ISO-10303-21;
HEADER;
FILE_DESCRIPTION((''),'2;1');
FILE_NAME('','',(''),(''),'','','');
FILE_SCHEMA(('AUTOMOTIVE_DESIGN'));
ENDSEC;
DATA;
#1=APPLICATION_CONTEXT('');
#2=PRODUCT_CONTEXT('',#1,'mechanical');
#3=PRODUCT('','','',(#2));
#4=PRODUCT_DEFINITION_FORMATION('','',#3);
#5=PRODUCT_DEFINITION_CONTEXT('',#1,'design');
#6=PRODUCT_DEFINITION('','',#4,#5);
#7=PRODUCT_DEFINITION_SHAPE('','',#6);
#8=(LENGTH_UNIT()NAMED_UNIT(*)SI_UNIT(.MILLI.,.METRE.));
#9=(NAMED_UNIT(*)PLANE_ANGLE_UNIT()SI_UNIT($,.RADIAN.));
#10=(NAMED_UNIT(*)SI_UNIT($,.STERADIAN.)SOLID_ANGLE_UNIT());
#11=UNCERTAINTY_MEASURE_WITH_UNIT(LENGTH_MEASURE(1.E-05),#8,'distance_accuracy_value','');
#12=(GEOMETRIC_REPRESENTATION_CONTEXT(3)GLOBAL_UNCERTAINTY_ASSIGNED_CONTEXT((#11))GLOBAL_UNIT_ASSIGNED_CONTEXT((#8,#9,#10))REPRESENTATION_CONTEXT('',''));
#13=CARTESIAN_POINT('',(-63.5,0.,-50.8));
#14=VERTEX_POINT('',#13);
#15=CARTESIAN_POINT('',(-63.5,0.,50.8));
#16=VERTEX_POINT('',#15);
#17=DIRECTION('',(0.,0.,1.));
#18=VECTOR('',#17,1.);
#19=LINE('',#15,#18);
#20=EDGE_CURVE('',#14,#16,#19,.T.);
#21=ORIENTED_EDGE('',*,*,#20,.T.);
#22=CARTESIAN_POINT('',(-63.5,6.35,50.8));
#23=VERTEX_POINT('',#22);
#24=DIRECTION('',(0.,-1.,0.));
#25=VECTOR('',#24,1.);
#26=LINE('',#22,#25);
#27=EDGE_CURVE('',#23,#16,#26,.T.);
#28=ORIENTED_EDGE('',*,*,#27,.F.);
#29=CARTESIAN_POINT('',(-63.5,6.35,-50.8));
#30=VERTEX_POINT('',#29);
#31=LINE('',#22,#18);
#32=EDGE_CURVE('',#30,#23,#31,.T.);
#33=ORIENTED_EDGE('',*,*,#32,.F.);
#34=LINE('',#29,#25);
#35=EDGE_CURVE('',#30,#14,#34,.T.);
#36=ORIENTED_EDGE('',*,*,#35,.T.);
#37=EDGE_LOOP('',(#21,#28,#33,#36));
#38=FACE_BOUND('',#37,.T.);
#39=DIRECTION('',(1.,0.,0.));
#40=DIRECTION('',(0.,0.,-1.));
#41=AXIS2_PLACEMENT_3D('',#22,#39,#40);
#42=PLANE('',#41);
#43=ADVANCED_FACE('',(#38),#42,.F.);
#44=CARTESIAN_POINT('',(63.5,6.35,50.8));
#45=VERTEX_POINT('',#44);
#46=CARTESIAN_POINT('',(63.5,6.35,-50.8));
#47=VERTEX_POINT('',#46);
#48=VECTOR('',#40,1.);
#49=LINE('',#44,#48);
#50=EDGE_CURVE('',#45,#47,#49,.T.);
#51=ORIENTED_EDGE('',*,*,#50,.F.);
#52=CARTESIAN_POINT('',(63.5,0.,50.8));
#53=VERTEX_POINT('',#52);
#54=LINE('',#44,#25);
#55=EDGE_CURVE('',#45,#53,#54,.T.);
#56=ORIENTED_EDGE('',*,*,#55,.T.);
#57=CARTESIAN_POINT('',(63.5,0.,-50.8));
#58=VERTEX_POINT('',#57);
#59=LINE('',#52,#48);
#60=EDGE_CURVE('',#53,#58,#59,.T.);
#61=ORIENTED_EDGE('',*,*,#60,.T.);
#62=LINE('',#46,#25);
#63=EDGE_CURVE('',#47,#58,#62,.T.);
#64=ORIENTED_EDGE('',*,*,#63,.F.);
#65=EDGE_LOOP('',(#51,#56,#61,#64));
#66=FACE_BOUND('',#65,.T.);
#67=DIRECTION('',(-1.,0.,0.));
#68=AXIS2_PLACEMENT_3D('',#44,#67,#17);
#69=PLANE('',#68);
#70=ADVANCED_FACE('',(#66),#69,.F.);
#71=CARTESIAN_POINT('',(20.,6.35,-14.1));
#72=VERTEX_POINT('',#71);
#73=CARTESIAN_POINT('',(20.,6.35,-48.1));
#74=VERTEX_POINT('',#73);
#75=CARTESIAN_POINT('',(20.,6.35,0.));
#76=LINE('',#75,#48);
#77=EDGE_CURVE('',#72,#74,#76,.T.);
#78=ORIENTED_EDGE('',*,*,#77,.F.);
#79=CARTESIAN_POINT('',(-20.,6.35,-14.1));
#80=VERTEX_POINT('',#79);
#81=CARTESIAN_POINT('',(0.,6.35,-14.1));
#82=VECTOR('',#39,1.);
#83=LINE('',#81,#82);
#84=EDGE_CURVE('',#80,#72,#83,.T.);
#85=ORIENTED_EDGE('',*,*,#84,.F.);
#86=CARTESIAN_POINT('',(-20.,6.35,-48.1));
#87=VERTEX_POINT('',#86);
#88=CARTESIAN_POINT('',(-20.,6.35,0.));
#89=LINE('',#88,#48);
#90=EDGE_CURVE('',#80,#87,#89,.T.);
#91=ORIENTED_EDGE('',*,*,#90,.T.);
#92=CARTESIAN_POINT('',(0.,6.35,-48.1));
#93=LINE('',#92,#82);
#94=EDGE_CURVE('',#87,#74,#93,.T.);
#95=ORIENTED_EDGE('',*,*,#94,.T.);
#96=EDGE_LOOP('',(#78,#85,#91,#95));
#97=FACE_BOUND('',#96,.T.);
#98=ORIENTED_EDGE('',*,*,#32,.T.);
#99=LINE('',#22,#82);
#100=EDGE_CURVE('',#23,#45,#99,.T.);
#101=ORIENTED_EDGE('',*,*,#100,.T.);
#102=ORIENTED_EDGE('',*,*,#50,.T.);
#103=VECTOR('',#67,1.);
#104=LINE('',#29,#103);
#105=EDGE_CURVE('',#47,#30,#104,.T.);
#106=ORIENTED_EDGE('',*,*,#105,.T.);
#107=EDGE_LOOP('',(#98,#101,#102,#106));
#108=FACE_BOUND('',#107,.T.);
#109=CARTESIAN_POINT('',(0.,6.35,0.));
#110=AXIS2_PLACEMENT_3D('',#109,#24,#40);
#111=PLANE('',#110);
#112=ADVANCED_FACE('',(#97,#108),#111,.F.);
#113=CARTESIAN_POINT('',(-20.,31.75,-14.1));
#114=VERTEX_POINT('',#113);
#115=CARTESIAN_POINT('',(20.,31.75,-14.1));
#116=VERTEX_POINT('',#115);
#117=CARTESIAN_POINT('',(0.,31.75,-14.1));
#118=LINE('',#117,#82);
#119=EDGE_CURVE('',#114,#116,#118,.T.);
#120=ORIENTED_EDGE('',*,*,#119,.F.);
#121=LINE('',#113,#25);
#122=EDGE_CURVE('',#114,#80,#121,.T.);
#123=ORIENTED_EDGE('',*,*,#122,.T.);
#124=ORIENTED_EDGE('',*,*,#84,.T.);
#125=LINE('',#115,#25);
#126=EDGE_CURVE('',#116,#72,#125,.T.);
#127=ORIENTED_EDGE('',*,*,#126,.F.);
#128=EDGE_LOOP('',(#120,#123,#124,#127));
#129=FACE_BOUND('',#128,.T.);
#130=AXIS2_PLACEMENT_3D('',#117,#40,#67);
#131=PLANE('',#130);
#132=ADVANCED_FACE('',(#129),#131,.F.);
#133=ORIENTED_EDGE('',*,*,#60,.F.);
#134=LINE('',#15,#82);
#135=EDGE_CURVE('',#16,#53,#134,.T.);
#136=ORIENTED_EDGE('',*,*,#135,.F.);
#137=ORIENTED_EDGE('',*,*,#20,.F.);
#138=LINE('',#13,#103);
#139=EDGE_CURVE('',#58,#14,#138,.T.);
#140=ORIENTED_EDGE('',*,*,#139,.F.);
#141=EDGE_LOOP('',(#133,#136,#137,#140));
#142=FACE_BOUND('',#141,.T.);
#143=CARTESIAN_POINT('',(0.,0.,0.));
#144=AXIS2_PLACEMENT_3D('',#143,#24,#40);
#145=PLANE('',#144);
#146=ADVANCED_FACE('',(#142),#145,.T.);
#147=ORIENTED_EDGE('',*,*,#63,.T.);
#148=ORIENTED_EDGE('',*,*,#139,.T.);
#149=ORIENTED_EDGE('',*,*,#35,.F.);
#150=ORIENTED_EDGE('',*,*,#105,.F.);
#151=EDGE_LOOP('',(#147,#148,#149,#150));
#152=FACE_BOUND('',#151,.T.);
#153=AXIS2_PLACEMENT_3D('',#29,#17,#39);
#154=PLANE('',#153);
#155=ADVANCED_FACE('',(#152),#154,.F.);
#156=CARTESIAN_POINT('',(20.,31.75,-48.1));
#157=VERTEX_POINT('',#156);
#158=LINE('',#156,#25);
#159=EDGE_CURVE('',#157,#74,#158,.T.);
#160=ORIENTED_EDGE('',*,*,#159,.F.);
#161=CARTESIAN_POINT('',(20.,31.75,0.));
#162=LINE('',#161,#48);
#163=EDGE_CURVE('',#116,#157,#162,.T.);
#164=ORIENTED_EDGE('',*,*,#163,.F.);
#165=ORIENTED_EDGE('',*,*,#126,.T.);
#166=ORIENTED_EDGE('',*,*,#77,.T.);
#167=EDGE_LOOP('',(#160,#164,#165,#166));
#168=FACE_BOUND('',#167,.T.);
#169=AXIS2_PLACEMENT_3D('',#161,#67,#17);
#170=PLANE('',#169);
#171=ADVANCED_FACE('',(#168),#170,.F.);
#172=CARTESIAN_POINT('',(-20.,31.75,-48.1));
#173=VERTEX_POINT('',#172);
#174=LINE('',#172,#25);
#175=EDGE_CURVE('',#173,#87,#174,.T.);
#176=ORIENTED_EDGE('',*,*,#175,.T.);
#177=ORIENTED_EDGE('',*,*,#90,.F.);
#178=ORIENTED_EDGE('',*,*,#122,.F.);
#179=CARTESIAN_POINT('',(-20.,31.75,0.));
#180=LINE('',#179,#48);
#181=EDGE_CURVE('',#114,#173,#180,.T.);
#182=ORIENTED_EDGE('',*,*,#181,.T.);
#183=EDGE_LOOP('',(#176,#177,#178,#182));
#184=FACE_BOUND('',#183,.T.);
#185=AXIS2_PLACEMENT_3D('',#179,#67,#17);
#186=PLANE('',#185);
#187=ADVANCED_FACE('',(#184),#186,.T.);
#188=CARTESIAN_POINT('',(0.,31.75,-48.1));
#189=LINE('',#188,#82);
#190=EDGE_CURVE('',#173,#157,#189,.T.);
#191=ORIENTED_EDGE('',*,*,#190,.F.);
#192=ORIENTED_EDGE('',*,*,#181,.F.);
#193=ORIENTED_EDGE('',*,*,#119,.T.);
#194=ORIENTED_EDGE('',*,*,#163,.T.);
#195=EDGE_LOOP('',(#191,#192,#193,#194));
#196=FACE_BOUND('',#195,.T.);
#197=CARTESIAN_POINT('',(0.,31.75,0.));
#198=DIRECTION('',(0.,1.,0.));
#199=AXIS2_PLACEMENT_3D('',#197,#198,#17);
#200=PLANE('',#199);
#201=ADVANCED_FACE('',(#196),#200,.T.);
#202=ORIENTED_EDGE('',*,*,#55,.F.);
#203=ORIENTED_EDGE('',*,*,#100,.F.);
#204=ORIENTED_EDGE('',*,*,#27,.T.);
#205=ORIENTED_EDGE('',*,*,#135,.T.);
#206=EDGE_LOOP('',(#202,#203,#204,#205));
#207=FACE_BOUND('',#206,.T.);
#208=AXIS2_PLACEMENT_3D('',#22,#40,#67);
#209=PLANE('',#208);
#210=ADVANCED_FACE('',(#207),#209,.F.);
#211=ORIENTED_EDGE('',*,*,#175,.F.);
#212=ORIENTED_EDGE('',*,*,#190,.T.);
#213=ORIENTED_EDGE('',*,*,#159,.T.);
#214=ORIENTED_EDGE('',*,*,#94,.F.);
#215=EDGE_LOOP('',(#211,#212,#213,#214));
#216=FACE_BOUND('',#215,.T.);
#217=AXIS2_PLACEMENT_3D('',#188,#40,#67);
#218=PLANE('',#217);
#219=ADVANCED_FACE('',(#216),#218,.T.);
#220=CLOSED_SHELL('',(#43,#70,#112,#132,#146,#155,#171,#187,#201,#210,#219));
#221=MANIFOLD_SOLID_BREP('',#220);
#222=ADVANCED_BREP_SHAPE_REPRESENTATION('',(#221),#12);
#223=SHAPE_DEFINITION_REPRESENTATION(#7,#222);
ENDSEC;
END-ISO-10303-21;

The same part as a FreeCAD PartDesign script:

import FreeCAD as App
import Part
import Sketcher
from FreeCAD import Vector
Q = App.Units.Quantity


def add_polygon(sketch, points):
    """Adds a closed chain of lines whose ends are joined by coincident constraints."""
    first, n = sketch.GeometryCount, len(points)
    for a, b in zip(points, points[1:] + points[:1]):
        sketch.addGeometry(Part.LineSegment(App.Vector(*a, 0), App.Vector(*b, 0)), False)
    for i in range(n):
        sketch.addConstraint(Sketcher.Constraint("Coincident", first + i, 2, first + (i + 1) % n, 1))

doc = App.newDocument("Part")
body = doc.addObject("PartDesign::Body", "Body")

# Sketch on XZ plane
sketch1 = doc.addObject("Sketcher::SketchObject", "Sketch")
body.addObject(sketch1)
sketch1.AttachmentSupport = (doc.XZ_Plane, [""])
sketch1.MapMode = "FlatFace"
add_polygon(sketch1, [(-63.5, -50.8), (-63.5, 50.8), (63.5, 50.8), (63.5, -50.8)])  # lines 0-3
sketch1.addConstraint([
    Sketcher.Constraint("Vertical", 0),
    Sketcher.Constraint("Horizontal", 1),
    Sketcher.Constraint("Vertical", 2),
    Sketcher.Constraint("Horizontal", 3),
    Sketcher.Constraint("Symmetric", 0, 2, 2, 2, -1, 1),
    Sketcher.Constraint("DistanceX", 1, 1, 1, 2, Q("5 in")),
    Sketcher.Constraint("DistanceY", 0, 1, 0, 2, Q("4 in")),
])
pad1 = doc.addObject("PartDesign::Pad", "Pad")
body.addObject(pad1)
pad1.Profile = sketch1
pad1.Length = Q("0.25 in")
pad1.Reversed = True

# Sketch on XZ plane
sketch2 = doc.addObject("Sketcher::SketchObject", "Sketch001")
body.addObject(sketch2)
sketch2.AttachmentSupport = (doc.XZ_Plane, [""])
sketch2.MapMode = "FlatFace"
sketch2.AttachmentOffset = App.Placement(Vector(0, 0, -0.25 * 25.4), App.Rotation())
add_polygon(sketch2, [(-20, -48.1), (-20, -14.1), (20, -14.1), (20, -48.1)])  # lines 0-3
sketch2.addConstraint([
    Sketcher.Constraint("Vertical", 0),
    Sketcher.Constraint("Horizontal", 1),
    Sketcher.Constraint("Vertical", 2),
    Sketcher.Constraint("Horizontal", 3),
    Sketcher.Constraint("DistanceX", 1, 1, 1, 2, 40.0),
    Sketcher.Constraint("DistanceY", 0, 1, 0, 2, 34.0),
    Sketcher.Constraint("DistanceX", 0, 2, -1, 1, 20.0),
    Sketcher.Constraint("DistanceY", 0, 2, -1, 1, 14.1),
])
pad2 = doc.addObject("PartDesign::Pad", "Pad001")
body.addObject(pad2)
pad2.Profile = sketch2
pad2.Length = Q("1 in")
pad2.Reversed = True

doc.recompute()
